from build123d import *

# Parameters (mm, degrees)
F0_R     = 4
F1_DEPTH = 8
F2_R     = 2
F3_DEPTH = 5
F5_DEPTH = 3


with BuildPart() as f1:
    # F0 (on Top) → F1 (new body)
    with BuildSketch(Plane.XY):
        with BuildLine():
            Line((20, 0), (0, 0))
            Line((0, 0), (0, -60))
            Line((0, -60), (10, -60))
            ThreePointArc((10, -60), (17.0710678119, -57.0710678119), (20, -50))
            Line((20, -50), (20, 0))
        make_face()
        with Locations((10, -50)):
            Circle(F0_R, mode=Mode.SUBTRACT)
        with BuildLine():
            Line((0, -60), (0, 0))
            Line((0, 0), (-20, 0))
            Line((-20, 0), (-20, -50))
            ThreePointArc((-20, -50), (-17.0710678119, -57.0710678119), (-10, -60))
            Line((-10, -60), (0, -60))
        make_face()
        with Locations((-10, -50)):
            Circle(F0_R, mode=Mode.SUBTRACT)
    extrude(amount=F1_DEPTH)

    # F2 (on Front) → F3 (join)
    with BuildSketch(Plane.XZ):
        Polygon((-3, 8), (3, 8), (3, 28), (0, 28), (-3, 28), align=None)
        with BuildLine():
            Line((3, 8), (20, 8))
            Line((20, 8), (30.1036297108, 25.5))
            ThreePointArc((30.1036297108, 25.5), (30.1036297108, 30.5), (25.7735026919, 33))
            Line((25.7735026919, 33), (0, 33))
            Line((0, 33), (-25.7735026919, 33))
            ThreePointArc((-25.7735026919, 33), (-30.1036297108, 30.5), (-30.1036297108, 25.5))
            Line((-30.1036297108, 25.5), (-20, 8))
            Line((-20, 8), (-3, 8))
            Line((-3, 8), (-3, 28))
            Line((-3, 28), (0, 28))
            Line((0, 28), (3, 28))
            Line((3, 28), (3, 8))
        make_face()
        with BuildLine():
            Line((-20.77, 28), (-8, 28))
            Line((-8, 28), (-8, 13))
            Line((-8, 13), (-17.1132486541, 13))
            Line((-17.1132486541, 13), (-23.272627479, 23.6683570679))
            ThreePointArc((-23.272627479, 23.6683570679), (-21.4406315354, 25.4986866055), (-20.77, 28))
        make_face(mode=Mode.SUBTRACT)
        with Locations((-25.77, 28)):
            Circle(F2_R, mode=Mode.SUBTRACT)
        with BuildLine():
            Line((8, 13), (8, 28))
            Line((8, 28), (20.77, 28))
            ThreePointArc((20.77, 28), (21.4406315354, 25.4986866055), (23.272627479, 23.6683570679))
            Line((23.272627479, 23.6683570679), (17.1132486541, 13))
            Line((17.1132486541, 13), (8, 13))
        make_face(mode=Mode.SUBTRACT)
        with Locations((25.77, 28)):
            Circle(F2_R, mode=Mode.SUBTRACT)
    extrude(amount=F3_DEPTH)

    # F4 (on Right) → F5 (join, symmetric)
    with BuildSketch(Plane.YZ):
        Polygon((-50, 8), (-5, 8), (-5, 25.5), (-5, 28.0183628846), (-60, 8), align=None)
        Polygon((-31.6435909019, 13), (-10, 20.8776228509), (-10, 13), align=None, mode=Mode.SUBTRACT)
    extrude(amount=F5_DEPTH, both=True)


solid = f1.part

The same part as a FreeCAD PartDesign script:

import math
import FreeCAD as App
import Part
import Sketcher
from FreeCAD import Vector
Q = App.Units.Quantity


def add_polygon(sketch, points):
    """Adds a closed chain of lines whose ends are joined by coincident constraints."""
    first, n = sketch.GeometryCount, len(points)
    for a, b in zip(points, points[1:] + points[:1]):
        sketch.addGeometry(Part.LineSegment(App.Vector(*a, 0), App.Vector(*b, 0)), False)
    for i in range(n):
        sketch.addConstraint(Sketcher.Constraint("Coincident", first + i, 2, first + (i + 1) % n, 1))

doc = App.newDocument("Part")
params = doc.addObject("Spreadsheet::Sheet", "Params")
for row, (alias, value) in enumerate([
    ("sketch1_diameter", "8 mm"),
    ("sketch1_radius", "10 mm"),
    ("sketch1_width", "40 mm"),
    ("sketch1_height", "50 mm"),
    ("pad1_length", "8 mm"),
    ("sketch2_diameter", "4 mm"),
    ("sketch2_radius", "5 mm"),
    ("sketch2_width", "40 mm"),
    ("sketch2_height", "15 mm"),
    ("sketch2_width2", "12.77 mm"),
    ("pad2_length", "5 mm"),
    ("sketch3_width", "55 mm"),
    ("pad3_length", "6 mm"),
], start=1):
    params.set(f"A{row}", alias)
    params.set(f"B{row}", "=" + value)
    params.setAlias(f"B{row}", alias)

body = doc.addObject("PartDesign::Body", "Body")

sketch1 = body.newObject("Sketcher::SketchObject", "Sketch")
sketch1.AttachmentSupport = (doc.getObject("XY_Plane"), [""])
sketch1.MapMode = "FlatFace"
sketch1.addGeometry(Part.LineSegment(Vector(20, 0, 0), Vector(-20, 0, 0)), False)
sketch1.addGeometry(Part.LineSegment(Vector(-20, 0, 0), Vector(-20, -50, 0)), False)
sketch1.addGeometry(Part.ArcOfCircle(Part.Circle(Vector(-10, -50, 0), Vector(0, 0, 1), 10), math.radians(180), math.radians(270)), False)
sketch1.addGeometry(Part.LineSegment(Vector(-10, -60, 0), Vector(10, -60, 0)), False)
sketch1.addGeometry(Part.ArcOfCircle(Part.Circle(Vector(10, -50, 0), Vector(0, 0, 1), 10), math.radians(-90), math.radians(0)), False)
sketch1.addGeometry(Part.LineSegment(Vector(20, -50, 0), Vector(20, 0, 0)), False)
sketch1.addGeometry(Part.Circle(Vector(-10, -50, 0), Vector(0, 0, 1), 4), False)
sketch1.addGeometry(Part.Circle(Vector(10, -50, 0), Vector(0, 0, 1), 4), False)
sketch1.addConstraint(Sketcher.Constraint("Coincident", 0, 2, 1, 1))
sketch1.addConstraint(Sketcher.Constraint("Tangent", 1, 2, 2, 1))
sketch1.addConstraint(Sketcher.Constraint("Tangent", 2, 2, 3, 1))
sketch1.addConstraint(Sketcher.Constraint("Tangent", 3, 2, 4, 1))
sketch1.addConstraint(Sketcher.Constraint("Tangent", 4, 2, 5, 1))
sketch1.addConstraint(Sketcher.Constraint("Coincident", 5, 2, 0, 1))
sketch1.addConstraint(Sketcher.Constraint("Horizontal", 0))
sketch1.addConstraint(Sketcher.Constraint("Vertical", 1))
sketch1.addConstraint(Sketcher.Constraint("Horizontal", 3))
sketch1.addConstraint(Sketcher.Constraint("Vertical", 5))
sketch1.addConstraint(Sketcher.Constraint("Coincident", 6, 3, 2, 3))
sketch1.addConstraint(Sketcher.Constraint("Coincident", 7, 3, 4, 3))
sketch1.addConstraint(Sketcher.Constraint("Equal", 2, 4))
sketch1.addConstraint(Sketcher.Constraint("Equal", 6, 7))
sketch1.addConstraint(Sketcher.Constraint("Symmetric", 0, 2, 5, 2, -1, 1))
sketch1.addConstraint(Sketcher.Constraint("Diameter", 6, 8.0))
sketch1.addConstraint(Sketcher.Constraint("Radius", 2, 10.0))
sketch1.addConstraint(Sketcher.Constraint("DistanceX", 0, 2, 0, 1, 40.0))
sketch1.addConstraint(Sketcher.Constraint("DistanceY", 1, 2, 1, 1, 50.0))
sketch1.setExpression("Constraints[15]", "Params.sketch1_diameter")
sketch1.setExpression("Constraints[16]", "Params.sketch1_radius")
sketch1.setExpression("Constraints[17]", "Params.sketch1_width")
sketch1.setExpression("Constraints[18]", "Params.sketch1_height")
pad1 = body.newObject("PartDesign::Pad", "Pad")
pad1.Profile = sketch1
pad1.setExpression("Length", "Params.pad1_length")

sketch2 = body.newObject("Sketcher::SketchObject", "Sketch001")
sketch2.AttachmentSupport = (doc.getObject("XZ_Plane"), [""])
sketch2.MapMode = "FlatFace"
sketch2.addGeometry(Part.LineSegment(Vector(20, 8, 0), Vector(30.10363, 25.5, 0)), False)
sketch2.addGeometry(Part.ArcOfCircle(Part.Circle(Vector(25.773503, 28, 0), Vector(0, 0, 1), 5), math.radians(-30), math.radians(90)), False)
sketch2.addGeometry(Part.LineSegment(Vector(25.773503, 33, 0), Vector(-25.773503, 33, 0)), False)
sketch2.addGeometry(Part.ArcOfCircle(Part.Circle(Vector(-25.773503, 28, 0), Vector(0, 0, 1), 5), math.radians(90), math.radians(210)), False)
sketch2.addGeometry(Part.LineSegment(Vector(-30.10363, 25.5, 0), Vector(-20, 8, 0)), False)
sketch2.addGeometry(Part.LineSegment(Vector(-20, 8, 0), Vector(20, 8, 0)), False)
sketch2.addGeometry(Part.ArcOfCircle(Part.Circle(Vector(-25.77, 28, 0), Vector(0, 0, 1), 5), math.radians(-60.03476), math.radians(0)), False)
sketch2.addGeometry(Part.LineSegment(Vector(-20.77, 28, 0), Vector(-8, 28, 0)), False)
sketch2.addGeometry(Part.LineSegment(Vector(-8, 28, 0), Vector(-8, 13, 0)), False)
sketch2.addGeometry(Part.LineSegment(Vector(-8, 13, 0), Vector(-17.113249, 13, 0)), False)
sketch2.addGeometry(Part.LineSegment(Vector(-17.113249, 13, 0), Vector(-23.272627, 23.668357, 0)), False)
sketch2.addGeometry(Part.LineSegment(Vector(17.113249, 13, 0), Vector(8, 13, 0)), False)
sketch2.addGeometry(Part.LineSegment(Vector(8, 13, 0), Vector(8, 28, 0)), False)
sketch2.addGeometry(Part.LineSegment(Vector(8, 28, 0), Vector(20.77, 28, 0)), False)
sketch2.addGeometry(Part.ArcOfCircle(Part.Circle(Vector(25.77, 28, 0), Vector(0, 0, 1), 5), math.radians(180), math.radians(240.03476)), False)
sketch2.addGeometry(Part.LineSegment(Vector(23.272627, 23.668357, 0), Vector(17.113249, 13, 0)), False)
sketch2.addGeometry(Part.Circle(Vector(-25.77, 28, 0), Vector(0, 0, 1), 2), False)
sketch2.addGeometry(Part.Circle(Vector(25.77, 28, 0), Vector(0, 0, 1), 2), False)
sketch2.addConstraint(Sketcher.Constraint("Tangent", 0, 2, 1, 1))
sketch2.addConstraint(Sketcher.Constraint("Tangent", 1, 2, 2, 1))
sketch2.addConstraint(Sketcher.Constraint("Tangent", 2, 2, 3, 1))
sketch2.addConstraint(Sketcher.Constraint("Tangent", 3, 2, 4, 1))
sketch2.addConstraint(Sketcher.Constraint("Coincident", 4, 2, 5, 1))
sketch2.addConstraint(Sketcher.Constraint("Coincident", 5, 2, 0, 1))
sketch2.addConstraint(Sketcher.Constraint("Coincident", 6, 2, 7, 1))
sketch2.addConstraint(Sketcher.Constraint("Coincident", 7, 2, 8, 1))
sketch2.addConstraint(Sketcher.Constraint("Coincident", 8, 2, 9, 1))
sketch2.addConstraint(Sketcher.Constraint("Coincident", 9, 2, 10, 1))
sketch2.addConstraint(Sketcher.Constraint("Coincident", 10, 2, 6, 1))
sketch2.addConstraint(Sketcher.Constraint("Coincident", 11, 2, 12, 1))
sketch2.addConstraint(Sketcher.Constraint("Coincident", 12, 2, 13, 1))
sketch2.addConstraint(Sketcher.Constraint("Coincident", 13, 2, 14, 1))
sketch2.addConstraint(Sketcher.Constraint("Coincident", 14, 2, 15, 1))
sketch2.addConstraint(Sketcher.Constraint("Coincident", 15, 2, 11, 1))
sketch2.addConstraint(Sketcher.Constraint("Horizontal", 2))
sketch2.addConstraint(Sketcher.Constraint("Horizontal", 5))
sketch2.addConstraint(Sketcher.Constraint("Horizontal", 7))
sketch2.addConstraint(Sketcher.Constraint("Vertical", 8))
sketch2.addConstraint(Sketcher.Constraint("Horizontal", 9))
sketch2.addConstraint(Sketcher.Constraint("Horizontal", 11))
sketch2.addConstraint(Sketcher.Constraint("Vertical", 12))
sketch2.addConstraint(Sketcher.Constraint("Horizontal", 13))
sketch2.addConstraint(Sketcher.Constraint("Coincident", 16, 3, 6, 3))
sketch2.addConstraint(Sketcher.Constraint("Coincident", 17, 3, 14, 3))
sketch2.addConstraint(Sketcher.Constraint("Equal", 1, 3))
sketch2.addConstraint(Sketcher.Constraint("Equal", 3, 6))
sketch2.addConstraint(Sketcher.Constraint("Equal", 6, 14))
sketch2.addConstraint(Sketcher.Constraint("Equal", 16, 17))
sketch2.addConstraint(Sketcher.Constraint("Symmetric", 6, 3, 14, 3, -2))
sketch2.addConstraint(Sketcher.Constraint("Symmetric", 0, 2, 3, 2, -2))
sketch2.addConstraint(Sketcher.Constraint("Symmetric", 8, 2, 11, 2, -2))
sketch2.addConstraint(Sketcher.Constraint("Parallel", 4, 10))
sketch2.addConstraint(Sketcher.Constraint("Parallel", 0, 15))
sketch2.addConstraint(Sketcher.Constraint("Horizontal", 3, 3, 6, 3))
sketch2.addConstraint(Sketcher.Constraint("Horizontal", 17, 3, 6, 2))
sketch2.addConstraint(Sketcher.Constraint("Horizontal", 7, 2, 12, 2))
sketch2.addConstraint(Sketcher.Constraint("Horizontal", 10, 2, 14, 2))
sketch2.addConstraint(Sketcher.Constraint("Diameter", 16, 4.0))
sketch2.addConstraint(Sketcher.Constraint("Radius", 1, 5.0))
sketch2.addConstraint(Sketcher.Constraint("DistanceX", 5, 1, 5, 2, 40.0))
sketch2.addConstraint(Sketcher.Constraint("DistanceY", 8, 2, 8, 1, 15.0))
sketch2.addConstraint(Sketcher.Constraint("Angle", 0, Q("60 deg")))
sketch2.addConstraint(Sketcher.Constraint("DistanceY", -1, 1, 1, 3, 28.0))
sketch2.addConstraint(Sketcher.Constraint("DistanceY", -1, 1, 4, 2, 8.0))
sketch2.addConstraint(Sketcher.Constraint("DistanceX", 7, 2, -1, 1, 8.0))
sketch2.addConstraint(Sketcher.Constraint("DistanceX", 7, 1, 7, 2, 12.77))
sketch2.addConstraint(Sketcher.Constraint("DistanceX", 9, 2, 9, 1, 9.113249))
sketch2.setExpression("Constraints[39]", "Params.sketch2_diameter")
sketch2.setExpression("Constraints[40]", "Params.sketch2_radius")
sketch2.setExpression("Constraints[41]", "Params.sketch2_width")
sketch2.setExpression("Constraints[42]", "Params.sketch2_height")
sketch2.setExpression("Constraints[47]", "Params.sketch2_width2")
pad2 = body.newObject("PartDesign::Pad", "Pad001")
pad2.Profile = sketch2
pad2.setExpression("Length", "Params.pad2_length")

sketch3 = body.newObject("Sketcher::SketchObject", "Sketch002")
sketch3.AttachmentSupport = (doc.getObject("YZ_Plane"), [""])
sketch3.MapMode = "FlatFace"
add_polygon(sketch3, [(-5, 8), (-5, 28.018363), (-60, 8)])
add_polygon(sketch3, [(-10, 13), (-31.643591, 13), (-10, 20.877623)])
sketch3.addConstraint(Sketcher.Constraint("Vertical", 0))
sketch3.addConstraint(Sketcher.Constraint("Horizontal", 2))
sketch3.addConstraint(Sketcher.Constraint("Horizontal", 3))
sketch3.addConstraint(Sketcher.Constraint("Vertical", 5))
sketch3.addConstraint(Sketcher.Constraint("Parallel", 1, 4))
sketch3.addConstraint(Sketcher.Constraint("DistanceX", 2, 1, 2, 2, 55.0))
sketch3.addConstraint(Sketcher.Constraint("Angle", 1, Q("-160 deg")))
sketch3.addConstraint(Sketcher.Constraint("DistanceX", 0, 2, -1, 1, 5.0))
sketch3.addConstraint(Sketcher.Constraint("DistanceY", -1, 1, 1, 2, 8.0))
sketch3.addConstraint(Sketcher.Constraint("DistanceY", -1, 1, 3, 2, 13.0))
sketch3.addConstraint(Sketcher.Constraint("DistanceX", 4, 2, -1, 1, 10.0))
sketch3.addConstraint(Sketcher.Constraint("DistanceX", 3, 2, 3, 1, 21.643591))
sketch3.setExpression("Constraints[11]", "Params.sketch3_width")
pad3 = body.newObject("PartDesign::Pad", "Pad002")
pad3.Profile = sketch3
pad3.setExpression("Length", "Params.pad3_length")
pad3.Midplane = True

doc.recompute()
